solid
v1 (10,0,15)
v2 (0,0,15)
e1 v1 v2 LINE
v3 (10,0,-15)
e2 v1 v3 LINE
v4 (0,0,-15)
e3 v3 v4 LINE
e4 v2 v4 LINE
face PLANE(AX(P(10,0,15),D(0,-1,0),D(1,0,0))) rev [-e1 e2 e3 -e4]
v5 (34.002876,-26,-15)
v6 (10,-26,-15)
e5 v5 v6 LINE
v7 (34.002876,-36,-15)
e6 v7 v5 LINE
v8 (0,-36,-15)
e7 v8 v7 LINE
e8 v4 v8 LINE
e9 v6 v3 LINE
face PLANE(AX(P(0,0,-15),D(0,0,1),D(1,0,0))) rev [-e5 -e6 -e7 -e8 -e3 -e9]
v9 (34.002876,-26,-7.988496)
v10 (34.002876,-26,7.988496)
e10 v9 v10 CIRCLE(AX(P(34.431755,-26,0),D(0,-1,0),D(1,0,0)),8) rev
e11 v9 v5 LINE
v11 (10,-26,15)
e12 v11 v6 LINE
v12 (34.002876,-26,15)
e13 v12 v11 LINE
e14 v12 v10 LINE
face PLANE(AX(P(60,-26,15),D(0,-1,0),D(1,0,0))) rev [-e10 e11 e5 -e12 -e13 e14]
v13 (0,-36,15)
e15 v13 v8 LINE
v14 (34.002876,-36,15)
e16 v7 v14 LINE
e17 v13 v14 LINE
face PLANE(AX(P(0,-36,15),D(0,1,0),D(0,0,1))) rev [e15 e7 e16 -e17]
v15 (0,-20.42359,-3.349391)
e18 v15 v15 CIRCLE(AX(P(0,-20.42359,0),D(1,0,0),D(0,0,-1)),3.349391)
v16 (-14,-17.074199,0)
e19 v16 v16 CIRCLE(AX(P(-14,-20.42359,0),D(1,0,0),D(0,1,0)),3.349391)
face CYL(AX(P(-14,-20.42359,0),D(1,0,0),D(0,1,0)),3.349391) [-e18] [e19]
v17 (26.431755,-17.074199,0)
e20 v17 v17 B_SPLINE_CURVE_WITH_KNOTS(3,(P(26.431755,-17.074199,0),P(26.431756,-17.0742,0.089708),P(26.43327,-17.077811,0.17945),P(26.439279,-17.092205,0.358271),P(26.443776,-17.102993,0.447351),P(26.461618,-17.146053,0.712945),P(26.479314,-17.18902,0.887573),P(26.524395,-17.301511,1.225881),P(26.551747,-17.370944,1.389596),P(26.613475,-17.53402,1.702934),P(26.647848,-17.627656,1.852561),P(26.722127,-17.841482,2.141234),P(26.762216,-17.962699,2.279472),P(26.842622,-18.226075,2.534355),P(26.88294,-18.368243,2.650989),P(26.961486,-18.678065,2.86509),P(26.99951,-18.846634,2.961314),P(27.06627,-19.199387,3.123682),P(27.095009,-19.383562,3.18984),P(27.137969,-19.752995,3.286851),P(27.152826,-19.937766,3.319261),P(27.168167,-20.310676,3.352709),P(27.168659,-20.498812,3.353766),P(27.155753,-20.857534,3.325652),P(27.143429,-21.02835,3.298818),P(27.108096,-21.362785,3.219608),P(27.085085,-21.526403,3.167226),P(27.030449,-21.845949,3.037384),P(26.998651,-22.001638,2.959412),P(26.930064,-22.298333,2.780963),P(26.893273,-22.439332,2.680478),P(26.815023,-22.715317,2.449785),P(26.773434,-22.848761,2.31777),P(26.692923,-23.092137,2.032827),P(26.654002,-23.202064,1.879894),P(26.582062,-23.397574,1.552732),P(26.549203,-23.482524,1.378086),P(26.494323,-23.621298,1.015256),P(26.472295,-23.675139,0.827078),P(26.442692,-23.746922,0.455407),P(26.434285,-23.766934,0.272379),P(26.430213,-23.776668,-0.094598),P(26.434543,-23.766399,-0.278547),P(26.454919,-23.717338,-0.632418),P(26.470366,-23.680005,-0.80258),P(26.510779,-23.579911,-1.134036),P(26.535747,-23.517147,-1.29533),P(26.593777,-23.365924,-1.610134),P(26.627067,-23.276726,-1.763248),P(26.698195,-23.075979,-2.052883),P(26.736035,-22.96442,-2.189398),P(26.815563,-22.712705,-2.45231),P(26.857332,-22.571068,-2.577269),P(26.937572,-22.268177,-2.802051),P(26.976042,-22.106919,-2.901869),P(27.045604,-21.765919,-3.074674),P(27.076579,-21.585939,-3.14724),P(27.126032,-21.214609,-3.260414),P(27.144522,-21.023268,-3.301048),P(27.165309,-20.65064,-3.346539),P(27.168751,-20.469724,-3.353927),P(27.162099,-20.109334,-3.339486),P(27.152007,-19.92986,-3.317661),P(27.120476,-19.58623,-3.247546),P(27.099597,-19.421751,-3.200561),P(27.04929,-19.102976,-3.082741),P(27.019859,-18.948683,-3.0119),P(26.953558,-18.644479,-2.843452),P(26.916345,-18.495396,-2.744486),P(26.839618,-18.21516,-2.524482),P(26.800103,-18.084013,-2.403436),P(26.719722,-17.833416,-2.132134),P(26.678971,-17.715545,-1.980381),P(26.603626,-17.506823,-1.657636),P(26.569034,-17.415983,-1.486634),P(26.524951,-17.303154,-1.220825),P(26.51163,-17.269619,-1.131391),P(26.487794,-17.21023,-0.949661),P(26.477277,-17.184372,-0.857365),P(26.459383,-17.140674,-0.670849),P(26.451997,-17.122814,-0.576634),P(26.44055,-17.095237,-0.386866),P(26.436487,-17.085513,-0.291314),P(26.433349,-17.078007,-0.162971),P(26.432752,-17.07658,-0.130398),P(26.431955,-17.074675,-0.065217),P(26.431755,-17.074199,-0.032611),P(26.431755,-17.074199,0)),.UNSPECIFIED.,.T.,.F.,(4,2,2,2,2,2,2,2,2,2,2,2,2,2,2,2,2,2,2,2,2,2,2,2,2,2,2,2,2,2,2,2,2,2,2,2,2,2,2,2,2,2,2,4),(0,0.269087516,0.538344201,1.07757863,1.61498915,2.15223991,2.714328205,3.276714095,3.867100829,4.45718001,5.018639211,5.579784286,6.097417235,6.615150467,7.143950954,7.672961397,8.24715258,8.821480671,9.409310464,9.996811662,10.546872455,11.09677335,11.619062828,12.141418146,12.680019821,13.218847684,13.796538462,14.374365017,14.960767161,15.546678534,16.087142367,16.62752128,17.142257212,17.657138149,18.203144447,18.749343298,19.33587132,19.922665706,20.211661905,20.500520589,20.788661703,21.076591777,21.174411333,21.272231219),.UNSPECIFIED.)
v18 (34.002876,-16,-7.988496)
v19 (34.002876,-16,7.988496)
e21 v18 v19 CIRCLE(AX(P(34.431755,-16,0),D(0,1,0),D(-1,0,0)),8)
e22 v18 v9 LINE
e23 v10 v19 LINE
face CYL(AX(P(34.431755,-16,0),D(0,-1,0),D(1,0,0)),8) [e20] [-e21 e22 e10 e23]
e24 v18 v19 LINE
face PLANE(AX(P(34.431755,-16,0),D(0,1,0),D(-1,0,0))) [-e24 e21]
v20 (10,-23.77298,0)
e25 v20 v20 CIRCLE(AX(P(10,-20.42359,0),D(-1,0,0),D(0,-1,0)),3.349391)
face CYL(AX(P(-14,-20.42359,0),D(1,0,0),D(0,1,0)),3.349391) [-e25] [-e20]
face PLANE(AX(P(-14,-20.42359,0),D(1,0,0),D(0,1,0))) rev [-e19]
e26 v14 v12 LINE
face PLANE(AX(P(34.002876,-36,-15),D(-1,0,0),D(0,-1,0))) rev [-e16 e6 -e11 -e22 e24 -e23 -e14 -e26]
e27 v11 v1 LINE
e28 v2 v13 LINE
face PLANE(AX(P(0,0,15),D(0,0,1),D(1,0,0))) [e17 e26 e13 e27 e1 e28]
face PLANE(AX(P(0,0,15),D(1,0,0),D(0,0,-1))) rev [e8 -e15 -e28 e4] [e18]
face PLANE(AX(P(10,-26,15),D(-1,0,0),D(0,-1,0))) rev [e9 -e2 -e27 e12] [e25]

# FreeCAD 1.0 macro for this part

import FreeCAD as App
import Part
import Sketcher
Q = App.Units.Quantity

doc = App.newDocument("Part")
body = doc.addObject("PartDesign::Body", "Body")

sketch1 = body.newObject("Sketcher::SketchObject", "Sketch")
sketch1.AttachmentSupport = (doc.getObject("XY_Plane"), [""])
sketch1.MapMode = "FlatFace"
sketch1.addGeometry([
    Part.LineSegment(App.Vector(0, 0, 0), App.Vector(0, -36, 0)),
    Part.LineSegment(App.Vector(0, -36, 0), App.Vector(60, -36, 0)),
    Part.LineSegment(App.Vector(60, -36, 0), App.Vector(60, -26, 0)),
    Part.LineSegment(App.Vector(60, -26, 0), App.Vector(10, -26, 0)),
    Part.LineSegment(App.Vector(10, -26, 0), App.Vector(10, 0, 0)),
    Part.LineSegment(App.Vector(10, 0, 0), App.Vector(0, 0, 0)),
], False)
sketch1.addConstraint([
    Sketcher.Constraint("Coincident", 0, 2, 1, 1),
    Sketcher.Constraint("Coincident", 1, 2, 2, 1),
    Sketcher.Constraint("Coincident", 2, 2, 3, 1),
    Sketcher.Constraint("Coincident", 3, 2, 4, 1),
    Sketcher.Constraint("Coincident", 4, 2, 5, 1),
    Sketcher.Constraint("Coincident", 5, 2, 0, 1),
    Sketcher.Constraint("Vertical", 0),
    Sketcher.Constraint("Horizontal", 1),
    Sketcher.Constraint("Vertical", 2),
    Sketcher.Constraint("Horizontal", 3),
    Sketcher.Constraint("Vertical", 4),
    Sketcher.Constraint("Horizontal", 5),
    Sketcher.Constraint("Coincident", 5, 2, -1, 1),
    Sketcher.Constraint("Equal", 5, 2),
    Sketcher.Constraint("DistanceX", 1, 1, 1, 2, Q("60 mm")),
    Sketcher.Constraint("DistanceX", 3, 2, 3, 1, Q("50 mm")),
    Sketcher.Constraint("DistanceY", 0, 2, 0, 1, Q("36 mm")),
])
pad1 = body.newObject("PartDesign::Pad", "Pad")
pad1.Profile = sketch1
pad1.Length = 30
pad1.Midplane = True

sketch2 = body.newObject("Sketcher::SketchObject", "Sketch001")
sketch2.AttachmentSupport = (doc.getObject("XZ_Plane"), [""])
sketch2.MapMode = "FlatFace"
sketch2.AttachmentOffset = App.Placement(App.Vector(0, 0, 26), App.Rotation())
sketch2.addGeometry(Part.Circle(App.Vector(34, 0, 0), App.Vector(0, 0, 1), 8), False)
sketch2.addConstraint([
    Sketcher.Constraint("PointOnObject", 0, 3, -1),
    Sketcher.Constraint("Diameter", 0, Q("16 mm")),
    Sketcher.Constraint("DistanceX", -1, 1, 0, 3, Q("34.431755 mm")),
])
pad2 = body.newObject("PartDesign::Pad", "Pad001")
pad2.Profile = sketch2
pad2.Length = 20
pad2.Midplane = True

sketch3 = body.newObject("Sketcher::SketchObject", "Sketch002")
sketch3.AttachmentSupport = (doc.getObject("XZ_Plane"), [""])
sketch3.MapMode = "FlatFace"
sketch3.AttachmentOffset = App.Placement(App.Vector(0, 0, 26), App.Rotation())
sketch3.addGeometry([
    Part.LineSegment(App.Vector(34, -15, 0), App.Vector(34, 15, 0)),
    Part.LineSegment(App.Vector(34, 15, 0), App.Vector(60, 15, 0)),
    Part.LineSegment(App.Vector(60, 15, 0), App.Vector(60, -15, 0)),
    Part.LineSegment(App.Vector(60, -15, 0), App.Vector(34, -15, 0)),
], False)
sketch3.addConstraint([
    Sketcher.Constraint("Coincident", 0, 2, 1, 1),
    Sketcher.Constraint("Coincident", 1, 2, 2, 1),
    Sketcher.Constraint("Coincident", 2, 2, 3, 1),
    Sketcher.Constraint("Coincident", 3, 2, 0, 1),
    Sketcher.Constraint("Vertical", 0),
    Sketcher.Constraint("Horizontal", 1),
    Sketcher.Constraint("Vertical", 2),
    Sketcher.Constraint("Horizontal", 3),
    Sketcher.Constraint("DistanceY", 0, 1, 0, 2, Q("30 mm")),
    Sketcher.Constraint("DistanceY", -1, 1, 0, 2, Q("15 mm")),
    Sketcher.Constraint("DistanceX", -1, 1, 1, 2, Q("60 mm")),
    Sketcher.Constraint("DistanceX", 1, 1, 1, 2, Q("25.997124 mm")),
])
pocket1 = body.newObject("PartDesign::Pocket", "Pocket")
pocket1.Profile = sketch3
pocket1.Type = "ThroughAll"
pocket1.Midplane = True

sketch4 = body.newObject("Sketcher::SketchObject", "Sketch003")
sketch4.AttachmentSupport = (doc.getObject("YZ_Plane"), [""])
sketch4.MapMode = "FlatFace"
sketch4.AttachmentOffset = App.Placement(App.Vector(0, 0, -14), App.Rotation())
sketch4.addGeometry(Part.Circle(App.Vector(-20.4, 0, 0), App.Vector(0, 0, 1), 3.3), False)
sketch4.addConstraint([
    Sketcher.Constraint("PointOnObject", 0, 3, -1),
    Sketcher.Constraint("Diameter", 0, Q("6.698781 mm")),
    Sketcher.Constraint("DistanceX", 0, 3, -1, 1, Q("20.42359 mm")),
])
pad3 = body.newObject("PartDesign::Pad", "Pad002")
pad3.Profile = sketch4
pad3.Length = 41.166654

doc.recompute()
